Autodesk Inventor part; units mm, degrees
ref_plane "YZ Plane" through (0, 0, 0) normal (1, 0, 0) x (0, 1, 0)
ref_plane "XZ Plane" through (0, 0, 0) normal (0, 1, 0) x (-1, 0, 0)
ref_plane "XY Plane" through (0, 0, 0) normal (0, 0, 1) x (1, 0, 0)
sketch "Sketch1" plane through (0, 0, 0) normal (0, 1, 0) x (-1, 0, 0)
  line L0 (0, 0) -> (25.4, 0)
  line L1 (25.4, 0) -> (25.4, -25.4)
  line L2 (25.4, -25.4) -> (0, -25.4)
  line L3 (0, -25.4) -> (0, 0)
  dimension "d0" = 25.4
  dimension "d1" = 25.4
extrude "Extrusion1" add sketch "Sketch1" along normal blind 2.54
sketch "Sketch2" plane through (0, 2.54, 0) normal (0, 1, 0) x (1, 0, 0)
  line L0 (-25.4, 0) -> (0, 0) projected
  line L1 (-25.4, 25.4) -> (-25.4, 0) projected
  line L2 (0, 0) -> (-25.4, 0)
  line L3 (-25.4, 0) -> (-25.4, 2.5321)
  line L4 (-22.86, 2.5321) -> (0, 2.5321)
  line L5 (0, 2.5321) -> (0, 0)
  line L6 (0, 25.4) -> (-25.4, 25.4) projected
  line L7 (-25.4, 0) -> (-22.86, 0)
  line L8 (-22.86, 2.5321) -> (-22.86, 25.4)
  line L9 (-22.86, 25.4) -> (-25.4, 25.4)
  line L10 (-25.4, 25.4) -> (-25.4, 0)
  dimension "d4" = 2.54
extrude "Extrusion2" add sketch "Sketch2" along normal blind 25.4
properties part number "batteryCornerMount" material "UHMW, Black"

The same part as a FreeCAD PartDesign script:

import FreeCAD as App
import Part
import Sketcher
from FreeCAD import Vector
Q = App.Units.Quantity


def add_polygon(sketch, points):
    """Adds a closed chain of lines whose ends are joined by coincident constraints."""
    first, n = sketch.GeometryCount, len(points)
    for a, b in zip(points, points[1:] + points[:1]):
        sketch.addGeometry(Part.LineSegment(App.Vector(*a, 0), App.Vector(*b, 0)), False)
    for i in range(n):
        sketch.addConstraint(Sketcher.Constraint("Coincident", first + i, 2, first + (i + 1) % n, 1))

doc = App.newDocument("Part")
params = doc.addObject("Spreadsheet::Sheet", "Params")
for row, (alias, value) in enumerate([
    ("sketch1_width", "1 in"),
    ("pad1_length", "0.1 in"),
    ("sketch2_width", "0.1 in"),
    ("sketch2_width2", "1 in"),
    ("pad2_length", "1 in"),
], start=1):
    params.set(f"A{row}", alias)
    params.set(f"B{row}", "=" + value)
    params.setAlias(f"B{row}", alias)

body = doc.addObject("PartDesign::Body", "Body")

sketch1 = body.newObject("Sketcher::SketchObject", "Sketch")
sketch1.AttachmentSupport = (doc.getObject("XZ_Plane"), [""])
sketch1.MapMode = "FlatFace"
add_polygon(sketch1, [(-25.4, 0), (0, 0), (0, -25.4), (-25.4, -25.4)])
sketch1.addConstraint([
    Sketcher.Constraint("Horizontal", 0),
    Sketcher.Constraint("Vertical", 1),
    Sketcher.Constraint("Horizontal", 2),
    Sketcher.Constraint("Vertical", 3),
    Sketcher.Constraint("Coincident", 0, 2, -1, 1),
    Sketcher.Constraint("Equal", 2, 1),
    Sketcher.Constraint("DistanceX", 0, 1, 0, 2, Q("1 in")),
])
sketch1.setExpression("Constraints[10]", "Params.sketch1_width")
pad1 = body.newObject("PartDesign::Pad", "Pad")
pad1.Profile = sketch1
pad1.setExpression("Length", "Params.pad1_length")
pad1.Reversed = True

sketch2 = body.newObject("Sketcher::SketchObject", "Sketch001")
sketch2.AttachmentSupport = (doc.getObject("XZ_Plane"), [""])
sketch2.MapMode = "FlatFace"
sketch2.AttachmentOffset = App.Placement(Vector(0, 0, -0.1 * 25.4), App.Rotation())
add_polygon(sketch2, [(-25.4, -25.4), (-25.4, 0), (0, 0), (0, -2.5321), (-22.86, -2.5321), (-22.86, -25.4)])
sketch2.addConstraint([
    Sketcher.Constraint("Vertical", 0),
    Sketcher.Constraint("Horizontal", 1),
    Sketcher.Constraint("Vertical", 2),
    Sketcher.Constraint("Horizontal", 3),
    Sketcher.Constraint("Vertical", 4),
    Sketcher.Constraint("Horizontal", 5),
    Sketcher.Constraint("Coincident", 1, 2, -1, 1),
    Sketcher.Constraint("Equal", 1, 0),
    Sketcher.Constraint("DistanceX", 5, 2, 5, 1, Q("0.1 in")),
    Sketcher.Constraint("DistanceX", 1, 1, 1, 2, Q("1 in")),
    Sketcher.Constraint("DistanceY", 2, 2, 2, 1, Q("0.0997 in")),
])
sketch2.setExpression("Constraints[14]", "Params.sketch2_width")
sketch2.setExpression("Constraints[15]", "Params.sketch2_width2")
pad2 = body.newObject("PartDesign::Pad", "Pad001")
pad2.Profile = sketch2
pad2.setExpression("Length", "Params.pad2_length")
pad2.Reversed = True

doc.recompute()
